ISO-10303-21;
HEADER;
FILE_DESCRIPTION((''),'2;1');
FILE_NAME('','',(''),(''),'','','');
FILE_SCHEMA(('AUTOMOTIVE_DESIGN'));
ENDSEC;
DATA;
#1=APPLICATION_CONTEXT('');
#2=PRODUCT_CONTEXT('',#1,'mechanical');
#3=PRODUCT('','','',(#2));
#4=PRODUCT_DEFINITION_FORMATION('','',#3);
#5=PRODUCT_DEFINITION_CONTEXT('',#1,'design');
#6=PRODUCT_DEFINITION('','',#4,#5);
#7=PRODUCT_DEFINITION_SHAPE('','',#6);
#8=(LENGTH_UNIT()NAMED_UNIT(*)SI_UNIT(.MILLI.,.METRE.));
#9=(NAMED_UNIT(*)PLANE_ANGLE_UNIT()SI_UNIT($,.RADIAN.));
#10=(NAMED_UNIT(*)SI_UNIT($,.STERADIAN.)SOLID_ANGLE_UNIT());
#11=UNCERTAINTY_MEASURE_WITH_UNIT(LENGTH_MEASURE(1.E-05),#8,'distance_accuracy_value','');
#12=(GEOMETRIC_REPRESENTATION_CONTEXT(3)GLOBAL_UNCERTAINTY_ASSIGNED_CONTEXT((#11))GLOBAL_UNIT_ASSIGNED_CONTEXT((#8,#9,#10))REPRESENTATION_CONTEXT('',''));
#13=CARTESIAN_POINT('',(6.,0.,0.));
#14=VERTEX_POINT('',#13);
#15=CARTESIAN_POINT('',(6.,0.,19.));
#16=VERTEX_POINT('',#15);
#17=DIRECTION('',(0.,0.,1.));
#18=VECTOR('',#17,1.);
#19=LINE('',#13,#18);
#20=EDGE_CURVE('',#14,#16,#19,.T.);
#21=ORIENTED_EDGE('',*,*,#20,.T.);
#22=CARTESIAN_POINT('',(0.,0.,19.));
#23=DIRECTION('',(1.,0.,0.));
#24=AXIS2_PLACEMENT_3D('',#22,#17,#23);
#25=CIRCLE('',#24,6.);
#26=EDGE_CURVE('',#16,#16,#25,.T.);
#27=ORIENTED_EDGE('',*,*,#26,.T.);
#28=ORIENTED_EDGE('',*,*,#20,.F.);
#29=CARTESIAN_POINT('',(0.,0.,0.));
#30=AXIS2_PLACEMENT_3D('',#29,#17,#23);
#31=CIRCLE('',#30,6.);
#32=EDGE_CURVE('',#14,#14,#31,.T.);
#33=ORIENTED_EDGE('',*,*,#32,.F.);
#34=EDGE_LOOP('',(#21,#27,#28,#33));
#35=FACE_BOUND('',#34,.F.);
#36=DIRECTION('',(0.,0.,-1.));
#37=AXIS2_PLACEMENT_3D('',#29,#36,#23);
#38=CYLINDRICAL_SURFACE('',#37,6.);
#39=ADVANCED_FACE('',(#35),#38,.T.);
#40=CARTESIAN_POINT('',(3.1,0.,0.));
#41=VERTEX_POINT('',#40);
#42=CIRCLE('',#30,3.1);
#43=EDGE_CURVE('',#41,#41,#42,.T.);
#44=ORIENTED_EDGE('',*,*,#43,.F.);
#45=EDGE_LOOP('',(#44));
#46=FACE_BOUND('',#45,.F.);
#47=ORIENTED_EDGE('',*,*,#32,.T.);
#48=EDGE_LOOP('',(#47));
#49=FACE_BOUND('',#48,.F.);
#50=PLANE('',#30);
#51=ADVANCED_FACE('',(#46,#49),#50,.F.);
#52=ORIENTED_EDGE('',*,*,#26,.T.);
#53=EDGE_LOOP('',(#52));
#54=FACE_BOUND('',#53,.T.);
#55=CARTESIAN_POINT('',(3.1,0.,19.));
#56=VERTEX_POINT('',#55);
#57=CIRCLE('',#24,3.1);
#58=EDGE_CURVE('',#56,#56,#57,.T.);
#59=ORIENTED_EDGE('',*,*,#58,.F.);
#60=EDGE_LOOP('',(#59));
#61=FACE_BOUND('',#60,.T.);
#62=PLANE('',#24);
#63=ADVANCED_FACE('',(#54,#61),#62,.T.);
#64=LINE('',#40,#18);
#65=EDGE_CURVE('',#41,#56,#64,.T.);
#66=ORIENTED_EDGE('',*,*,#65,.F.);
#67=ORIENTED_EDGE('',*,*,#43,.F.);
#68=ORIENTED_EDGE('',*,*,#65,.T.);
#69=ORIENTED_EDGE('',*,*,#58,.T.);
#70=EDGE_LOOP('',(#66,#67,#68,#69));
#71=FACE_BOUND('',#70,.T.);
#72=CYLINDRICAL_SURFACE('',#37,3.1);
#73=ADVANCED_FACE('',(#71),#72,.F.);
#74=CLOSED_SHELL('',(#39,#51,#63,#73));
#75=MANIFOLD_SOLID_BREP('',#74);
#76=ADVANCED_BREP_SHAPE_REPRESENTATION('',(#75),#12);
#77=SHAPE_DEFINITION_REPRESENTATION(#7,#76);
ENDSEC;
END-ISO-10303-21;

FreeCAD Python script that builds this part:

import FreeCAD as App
import Part
import Sketcher

doc = App.newDocument("Part")
params = doc.addObject("Spreadsheet::Sheet", "Params")
for row, (alias, value) in enumerate([
    ("sketch1_diameter", "12 mm"),
    ("sketch1_diameter2", "6.2 mm"),
    ("pad1_length", "19 mm"),
], start=1):
    params.set(f"A{row}", alias)
    params.set(f"B{row}", "=" + value)
    params.setAlias(f"B{row}", alias)

body = doc.addObject("PartDesign::Body", "Body")

sketch1 = body.newObject("Sketcher::SketchObject", "Sketch")
sketch1.AttachmentSupport = (doc.getObject("XY_Plane"), [""])
sketch1.MapMode = "FlatFace"
sketch1.addGeometry([
    Part.Circle(App.Vector(0, 0, 0), App.Vector(0, 0, 1), 6),
    Part.Circle(App.Vector(0, 0, 0), App.Vector(0, 0, 1), 3.1),
], False)
sketch1.addConstraint([
    Sketcher.Constraint("Coincident", 0, 3, -1, 1),
    Sketcher.Constraint("Coincident", 1, 3, -1, 1),
    Sketcher.Constraint("Diameter", 0, 12.0),
    Sketcher.Constraint("Diameter", 1, 6.2),
])
sketch1.setExpression("Constraints[2]", "Params.sketch1_diameter")
sketch1.setExpression("Constraints[3]", "Params.sketch1_diameter2")
pad1 = body.newObject("PartDesign::Pad", "Pad")
pad1.Profile = sketch1
pad1.setExpression("Length", "Params.pad1_length")

doc.recompute()
